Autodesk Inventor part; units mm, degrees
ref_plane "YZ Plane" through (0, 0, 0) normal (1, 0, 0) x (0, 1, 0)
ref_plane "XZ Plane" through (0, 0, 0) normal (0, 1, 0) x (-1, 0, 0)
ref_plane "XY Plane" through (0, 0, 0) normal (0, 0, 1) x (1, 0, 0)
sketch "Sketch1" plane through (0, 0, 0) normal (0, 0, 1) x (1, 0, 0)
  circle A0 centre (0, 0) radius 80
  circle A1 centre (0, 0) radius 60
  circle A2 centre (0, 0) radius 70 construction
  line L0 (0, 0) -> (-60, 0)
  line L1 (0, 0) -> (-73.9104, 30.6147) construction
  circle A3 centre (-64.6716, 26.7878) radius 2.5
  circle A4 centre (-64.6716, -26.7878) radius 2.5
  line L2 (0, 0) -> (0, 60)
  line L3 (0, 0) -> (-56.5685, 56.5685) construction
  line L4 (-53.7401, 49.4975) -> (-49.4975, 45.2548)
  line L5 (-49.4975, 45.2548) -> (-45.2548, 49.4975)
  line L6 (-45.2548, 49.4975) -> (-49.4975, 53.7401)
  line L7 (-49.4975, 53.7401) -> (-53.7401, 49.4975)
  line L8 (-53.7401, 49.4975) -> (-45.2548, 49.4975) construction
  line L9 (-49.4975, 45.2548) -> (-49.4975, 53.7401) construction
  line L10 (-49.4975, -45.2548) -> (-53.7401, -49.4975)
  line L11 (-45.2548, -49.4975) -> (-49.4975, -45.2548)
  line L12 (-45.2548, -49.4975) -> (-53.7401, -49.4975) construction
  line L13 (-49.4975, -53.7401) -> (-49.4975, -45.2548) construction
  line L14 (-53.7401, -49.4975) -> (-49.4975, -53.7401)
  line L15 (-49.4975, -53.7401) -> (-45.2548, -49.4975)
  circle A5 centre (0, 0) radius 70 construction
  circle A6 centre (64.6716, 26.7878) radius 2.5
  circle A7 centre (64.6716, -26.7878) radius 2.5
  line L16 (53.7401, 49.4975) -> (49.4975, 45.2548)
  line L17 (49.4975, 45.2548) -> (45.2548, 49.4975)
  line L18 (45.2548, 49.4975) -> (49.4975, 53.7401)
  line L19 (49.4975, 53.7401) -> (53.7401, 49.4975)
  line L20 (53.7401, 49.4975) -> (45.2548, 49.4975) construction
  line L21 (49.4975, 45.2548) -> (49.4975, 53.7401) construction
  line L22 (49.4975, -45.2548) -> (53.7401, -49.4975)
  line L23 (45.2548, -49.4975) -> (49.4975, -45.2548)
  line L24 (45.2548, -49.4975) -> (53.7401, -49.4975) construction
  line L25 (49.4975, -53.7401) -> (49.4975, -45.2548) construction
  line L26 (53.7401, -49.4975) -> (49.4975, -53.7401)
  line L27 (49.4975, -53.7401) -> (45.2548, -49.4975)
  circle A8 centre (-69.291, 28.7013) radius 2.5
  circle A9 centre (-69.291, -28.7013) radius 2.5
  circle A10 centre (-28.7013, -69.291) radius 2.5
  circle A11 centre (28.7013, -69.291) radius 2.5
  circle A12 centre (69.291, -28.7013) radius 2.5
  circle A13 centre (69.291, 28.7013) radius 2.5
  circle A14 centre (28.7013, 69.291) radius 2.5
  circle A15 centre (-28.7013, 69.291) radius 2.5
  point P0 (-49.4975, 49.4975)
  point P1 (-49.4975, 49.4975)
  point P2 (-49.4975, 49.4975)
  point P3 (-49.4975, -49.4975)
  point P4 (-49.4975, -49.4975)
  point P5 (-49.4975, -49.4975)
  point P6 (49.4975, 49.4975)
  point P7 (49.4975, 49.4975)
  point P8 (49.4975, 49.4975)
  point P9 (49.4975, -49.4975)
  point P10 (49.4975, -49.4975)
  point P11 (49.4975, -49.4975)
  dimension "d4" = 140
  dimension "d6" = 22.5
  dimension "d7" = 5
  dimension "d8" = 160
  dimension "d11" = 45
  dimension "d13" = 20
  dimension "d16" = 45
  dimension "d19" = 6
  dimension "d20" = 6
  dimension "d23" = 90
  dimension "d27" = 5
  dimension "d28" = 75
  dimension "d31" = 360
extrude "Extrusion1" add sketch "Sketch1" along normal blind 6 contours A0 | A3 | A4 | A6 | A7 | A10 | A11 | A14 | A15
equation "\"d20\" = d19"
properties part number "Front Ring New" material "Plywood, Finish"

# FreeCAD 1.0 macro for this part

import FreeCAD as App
import Part
import Sketcher
Q = App.Units.Quantity

doc = App.newDocument("Part")
body = doc.addObject("PartDesign::Body", "Body")

sketch1 = body.newObject("Sketcher::SketchObject", "Sketch")
sketch1.AttachmentSupport = (doc.getObject("XY_Plane"), [""])
sketch1.MapMode = "FlatFace"
sketch1.addGeometry([
    Part.Circle(App.Vector(0, 0, 0), App.Vector(0, 0, 1), 80),
    Part.LineSegment(App.Vector(-53.7, -49.5, 0), App.Vector(-49.5, -45.3, 0)),
    Part.LineSegment(App.Vector(-49.5, -45.3, 0), App.Vector(-45.3, -49.5, 0)),
    Part.LineSegment(App.Vector(-45.3, -49.5, 0), App.Vector(-49.5, -53.7, 0)),
    Part.LineSegment(App.Vector(-49.5, -53.7, 0), App.Vector(-53.7, -49.5, 0)),
    Part.Circle(App.Vector(-69.3, -28.7, 0), App.Vector(0, 0, 1), 2.5),
    Part.LineSegment(App.Vector(45.3, -49.5, 0), App.Vector(49.5, -45.3, 0)),
    Part.LineSegment(App.Vector(49.5, -45.3, 0), App.Vector(53.7, -49.5, 0)),
    Part.LineSegment(App.Vector(53.7, -49.5, 0), App.Vector(49.5, -53.7, 0)),
    Part.LineSegment(App.Vector(49.5, -53.7, 0), App.Vector(45.3, -49.5, 0)),
    Part.Circle(App.Vector(69.3, -28.7, 0), App.Vector(0, 0, 1), 2.5),
    Part.Circle(App.Vector(-69.3, 28.7, 0), App.Vector(0, 0, 1), 2.5),
    Part.LineSegment(App.Vector(-49.5, 45.3, 0), App.Vector(-53.7, 49.5, 0)),
    Part.LineSegment(App.Vector(-53.7, 49.5, 0), App.Vector(-49.5, 53.7, 0)),
    Part.LineSegment(App.Vector(-49.5, 53.7, 0), App.Vector(-45.3, 49.5, 0)),
    Part.LineSegment(App.Vector(-45.3, 49.5, 0), App.Vector(-49.5, 45.3, 0)),
    Part.Circle(App.Vector(0, 0, 0), App.Vector(0, 0, 1), 60),
    Part.Circle(App.Vector(69.3, 28.7, 0), App.Vector(0, 0, 1), 2.5),
    Part.LineSegment(App.Vector(49.5, 53.7, 0), App.Vector(53.7, 49.5, 0)),
    Part.LineSegment(App.Vector(53.7, 49.5, 0), App.Vector(49.5, 45.3, 0)),
    Part.LineSegment(App.Vector(49.5, 45.3, 0), App.Vector(45.3, 49.5, 0)),
    Part.LineSegment(App.Vector(45.3, 49.5, 0), App.Vector(49.5, 53.7, 0)),
], False)
sketch1.addConstraint([
    Sketcher.Constraint("Coincident", 1, 2, 2, 1),
    Sketcher.Constraint("Coincident", 2, 2, 3, 1),
    Sketcher.Constraint("Coincident", 3, 2, 4, 1),
    Sketcher.Constraint("Coincident", 4, 2, 1, 1),
    Sketcher.Constraint("Coincident", 6, 2, 7, 1),
    Sketcher.Constraint("Coincident", 7, 2, 8, 1),
    Sketcher.Constraint("Coincident", 8, 2, 9, 1),
    Sketcher.Constraint("Coincident", 9, 2, 6, 1),
    Sketcher.Constraint("Coincident", 12, 2, 13, 1),
    Sketcher.Constraint("Coincident", 13, 2, 14, 1),
    Sketcher.Constraint("Coincident", 14, 2, 15, 1),
    Sketcher.Constraint("Coincident", 15, 2, 12, 1),
    Sketcher.Constraint("Coincident", 18, 2, 19, 1),
    Sketcher.Constraint("Coincident", 19, 2, 20, 1),
    Sketcher.Constraint("Coincident", 20, 2, 21, 1),
    Sketcher.Constraint("Coincident", 21, 2, 18, 1),
    Sketcher.Constraint("Coincident", 0, 3, -1, 1),
    Sketcher.Constraint("Coincident", 16, 3, -1, 1),
    Sketcher.Constraint("Equal", 5, 10),
    Sketcher.Constraint("Equal", 10, 11),
    Sketcher.Constraint("Equal", 11, 17),
    Sketcher.Constraint("Symmetric", 10, 3, 11, 3, -1, 1),
    Sketcher.Constraint("Symmetric", 5, 3, 17, 3, -1, 1),
    Sketcher.Constraint("Symmetric", 7, 2, 12, 2, -1, 1),
    Sketcher.Constraint("Symmetric", 8, 2, 13, 2, -1, 1),
    Sketcher.Constraint("Symmetric", 9, 2, 14, 2, -1, 1),
    Sketcher.Constraint("Symmetric", 6, 2, 15, 2, -1, 1),
    Sketcher.Constraint("Symmetric", 4, 2, 18, 2, -1, 1),
    Sketcher.Constraint("Symmetric", 1, 2, 19, 2, -1, 1),
    Sketcher.Constraint("Symmetric", 2, 2, 20, 2, -1, 1),
    Sketcher.Constraint("Symmetric", 3, 2, 21, 2, -1, 1),
    Sketcher.Constraint("Symmetric", 5, 3, 10, 3, -2),
    Sketcher.Constraint("Symmetric", 1, 2, 6, 2, -2),
    Sketcher.Constraint("Symmetric", 4, 2, 7, 2, -2),
    Sketcher.Constraint("Symmetric", 3, 2, 8, 2, -2),
    Sketcher.Constraint("Symmetric", 2, 2, 9, 2, -2),
    Sketcher.Constraint("Perpendicular", 1, 2),
    Sketcher.Constraint("Perpendicular", 2, 3),
    Sketcher.Constraint("Perpendicular", 3, 4),
    Sketcher.Constraint("Perpendicular", 4, 6),
    Sketcher.Constraint("Horizontal", 2, 2, 4, 2),
    Sketcher.Constraint("Diameter", 0, Q("160 mm")),
    Sketcher.Constraint("Diameter", 5, Q("5 mm")),
    Sketcher.Constraint("Distance", 1, Q("6 mm")),
    Sketcher.Constraint("Diameter", 16, Q("120 mm")),
    Sketcher.Constraint("DistanceY", 3, 2, -1, 1, Q("53.74 mm")),
    Sketcher.Constraint("DistanceX", 4, 2, -1, 1, Q("53.74 mm")),
    Sketcher.Constraint("DistanceX", 5, 3, -1, 1, Q("69.291 mm")),
    Sketcher.Constraint("DistanceY", 1, 2, 11, 3, Q("73.956 mm")),
])
pad1 = body.newObject("PartDesign::Pad", "Pad")
pad1.Profile = sketch1
pad1.Length = 6

doc.recompute()
